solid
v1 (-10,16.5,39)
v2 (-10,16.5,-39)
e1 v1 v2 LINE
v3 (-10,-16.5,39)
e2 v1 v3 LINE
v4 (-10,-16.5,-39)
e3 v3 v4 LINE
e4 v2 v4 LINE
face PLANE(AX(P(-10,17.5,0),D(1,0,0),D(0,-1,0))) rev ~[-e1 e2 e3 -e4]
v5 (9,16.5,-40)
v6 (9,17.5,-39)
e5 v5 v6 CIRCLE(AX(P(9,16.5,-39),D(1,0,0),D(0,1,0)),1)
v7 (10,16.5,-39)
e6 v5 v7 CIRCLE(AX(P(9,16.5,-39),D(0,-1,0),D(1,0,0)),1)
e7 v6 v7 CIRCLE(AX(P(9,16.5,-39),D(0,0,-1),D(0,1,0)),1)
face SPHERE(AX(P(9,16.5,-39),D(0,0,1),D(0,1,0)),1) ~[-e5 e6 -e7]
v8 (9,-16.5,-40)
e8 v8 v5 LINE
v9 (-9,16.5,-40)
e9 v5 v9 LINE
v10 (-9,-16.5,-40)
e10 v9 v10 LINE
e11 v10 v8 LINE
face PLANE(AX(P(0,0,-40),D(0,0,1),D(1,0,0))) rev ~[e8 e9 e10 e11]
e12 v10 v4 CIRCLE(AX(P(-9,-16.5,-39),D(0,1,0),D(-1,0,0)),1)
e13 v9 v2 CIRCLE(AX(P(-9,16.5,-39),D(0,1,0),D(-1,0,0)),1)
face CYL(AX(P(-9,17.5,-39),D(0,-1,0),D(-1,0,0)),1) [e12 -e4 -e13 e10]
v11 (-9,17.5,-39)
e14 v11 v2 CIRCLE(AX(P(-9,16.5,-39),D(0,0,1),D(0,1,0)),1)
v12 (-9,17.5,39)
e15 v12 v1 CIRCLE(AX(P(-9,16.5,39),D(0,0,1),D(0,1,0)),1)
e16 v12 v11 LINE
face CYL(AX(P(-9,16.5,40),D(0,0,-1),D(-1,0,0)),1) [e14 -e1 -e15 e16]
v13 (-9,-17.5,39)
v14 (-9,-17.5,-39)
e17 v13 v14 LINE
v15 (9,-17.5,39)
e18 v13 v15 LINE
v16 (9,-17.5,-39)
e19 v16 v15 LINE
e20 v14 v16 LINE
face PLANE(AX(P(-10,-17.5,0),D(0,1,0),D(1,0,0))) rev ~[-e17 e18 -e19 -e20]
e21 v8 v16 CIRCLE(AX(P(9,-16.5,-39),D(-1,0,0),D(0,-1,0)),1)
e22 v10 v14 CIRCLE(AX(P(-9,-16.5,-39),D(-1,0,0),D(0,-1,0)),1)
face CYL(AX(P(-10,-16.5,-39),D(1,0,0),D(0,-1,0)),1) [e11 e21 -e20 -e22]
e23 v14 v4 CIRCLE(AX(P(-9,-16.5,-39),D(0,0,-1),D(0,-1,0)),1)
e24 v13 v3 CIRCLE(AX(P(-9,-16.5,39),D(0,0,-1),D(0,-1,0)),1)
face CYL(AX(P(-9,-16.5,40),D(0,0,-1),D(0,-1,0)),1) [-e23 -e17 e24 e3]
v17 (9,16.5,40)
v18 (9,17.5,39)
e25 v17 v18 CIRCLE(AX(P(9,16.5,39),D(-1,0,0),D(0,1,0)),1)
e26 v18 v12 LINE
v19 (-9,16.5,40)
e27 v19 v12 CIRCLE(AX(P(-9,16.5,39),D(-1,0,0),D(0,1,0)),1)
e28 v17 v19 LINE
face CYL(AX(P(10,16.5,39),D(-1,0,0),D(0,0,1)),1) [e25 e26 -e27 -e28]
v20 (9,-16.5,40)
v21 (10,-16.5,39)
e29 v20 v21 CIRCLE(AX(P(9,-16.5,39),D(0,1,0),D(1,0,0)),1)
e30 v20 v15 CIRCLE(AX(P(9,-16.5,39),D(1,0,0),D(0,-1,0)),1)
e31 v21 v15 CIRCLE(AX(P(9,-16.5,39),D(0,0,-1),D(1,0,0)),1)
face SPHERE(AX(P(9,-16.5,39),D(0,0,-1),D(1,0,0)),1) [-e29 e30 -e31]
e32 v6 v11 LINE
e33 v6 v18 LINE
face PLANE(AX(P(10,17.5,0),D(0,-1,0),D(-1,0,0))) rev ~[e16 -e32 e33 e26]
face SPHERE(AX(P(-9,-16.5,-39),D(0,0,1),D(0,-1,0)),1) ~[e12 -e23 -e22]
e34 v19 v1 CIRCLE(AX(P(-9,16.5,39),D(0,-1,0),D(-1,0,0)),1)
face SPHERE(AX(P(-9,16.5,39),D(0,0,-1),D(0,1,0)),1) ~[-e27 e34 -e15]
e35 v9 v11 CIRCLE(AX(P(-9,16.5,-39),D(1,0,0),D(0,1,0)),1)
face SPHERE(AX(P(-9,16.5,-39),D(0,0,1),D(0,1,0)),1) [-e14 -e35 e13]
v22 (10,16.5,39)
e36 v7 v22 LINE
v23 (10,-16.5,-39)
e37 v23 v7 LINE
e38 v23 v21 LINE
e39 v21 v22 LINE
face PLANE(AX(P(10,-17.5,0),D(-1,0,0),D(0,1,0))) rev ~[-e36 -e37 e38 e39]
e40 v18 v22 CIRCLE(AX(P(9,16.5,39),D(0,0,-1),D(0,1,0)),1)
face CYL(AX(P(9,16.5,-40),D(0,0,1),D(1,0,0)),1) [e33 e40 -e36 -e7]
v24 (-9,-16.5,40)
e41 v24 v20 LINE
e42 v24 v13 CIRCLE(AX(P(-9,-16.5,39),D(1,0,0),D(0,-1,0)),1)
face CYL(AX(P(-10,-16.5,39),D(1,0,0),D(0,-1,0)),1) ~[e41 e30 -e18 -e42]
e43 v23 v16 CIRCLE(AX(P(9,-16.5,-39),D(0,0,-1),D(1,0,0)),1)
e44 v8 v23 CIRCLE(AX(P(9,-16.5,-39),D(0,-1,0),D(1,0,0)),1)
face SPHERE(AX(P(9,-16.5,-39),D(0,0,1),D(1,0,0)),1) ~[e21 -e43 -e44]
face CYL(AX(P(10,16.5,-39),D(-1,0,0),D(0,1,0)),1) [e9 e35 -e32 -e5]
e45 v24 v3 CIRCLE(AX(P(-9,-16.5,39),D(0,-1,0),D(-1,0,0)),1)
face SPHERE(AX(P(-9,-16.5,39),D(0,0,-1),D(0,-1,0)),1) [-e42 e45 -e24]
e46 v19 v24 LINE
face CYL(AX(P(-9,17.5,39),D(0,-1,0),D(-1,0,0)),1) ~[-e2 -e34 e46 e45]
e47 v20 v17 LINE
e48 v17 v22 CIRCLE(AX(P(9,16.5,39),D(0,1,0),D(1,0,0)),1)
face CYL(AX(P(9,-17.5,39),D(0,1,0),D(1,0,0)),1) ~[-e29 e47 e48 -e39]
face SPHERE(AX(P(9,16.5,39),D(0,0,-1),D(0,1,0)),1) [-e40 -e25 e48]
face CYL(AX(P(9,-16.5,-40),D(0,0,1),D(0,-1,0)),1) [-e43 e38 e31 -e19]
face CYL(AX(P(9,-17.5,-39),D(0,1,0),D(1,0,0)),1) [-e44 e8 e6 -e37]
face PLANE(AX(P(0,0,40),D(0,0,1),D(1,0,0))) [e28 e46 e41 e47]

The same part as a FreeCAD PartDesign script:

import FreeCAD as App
import Part
import Sketcher
from FreeCAD import Vector

doc = App.newDocument("Part")
body = doc.addObject("PartDesign::Body", "Body")

sketch1 = body.newObject("Sketcher::SketchObject", "Sketch")
sketch1.AttachmentSupport = (doc.getObject("XY_Plane"), [""])
sketch1.MapMode = "FlatFace"
sketch1.addGeometry([
    Part.LineSegment(Vector(-10, 18, 0), Vector(-10, -18, 0)),
    Part.LineSegment(Vector(-10, -18, 0), Vector(10, -18, 0)),
    Part.LineSegment(Vector(10, -18, 0), Vector(10, 18, 0)),
    Part.LineSegment(Vector(10, 18, 0), Vector(-10, 18, 0)),
], False)
sketch1.addConstraint([
    Sketcher.Constraint("Coincident", 0, 2, 1, 1),
    Sketcher.Constraint("Coincident", 1, 2, 2, 1),
    Sketcher.Constraint("Coincident", 2, 2, 3, 1),
    Sketcher.Constraint("Coincident", 3, 2, 0, 1),
    Sketcher.Constraint("Vertical", 0),
    Sketcher.Constraint("Horizontal", 1),
    Sketcher.Constraint("Vertical", 2),
    Sketcher.Constraint("Horizontal", 3),
    Sketcher.Constraint("Symmetric", 0, 2, 2, 2, -1, 1),
    Sketcher.Constraint("DistanceX", 0, 2, -1, 1, 10.0),
    Sketcher.Constraint("DistanceY", 0, 2, 0, 1, 35.0),
])
pad1 = body.newObject("PartDesign::Pad", "Pad")
pad1.Profile = sketch1
pad1.Length = 80
pad1.Midplane = True
doc.recompute()

fillet = body.newObject("PartDesign::Fillet", "Fillet")
fillet.Base = (pad1, ["Edge1"])
fillet.UseAllEdges = True
fillet.Radius = 1

doc.recompute()
